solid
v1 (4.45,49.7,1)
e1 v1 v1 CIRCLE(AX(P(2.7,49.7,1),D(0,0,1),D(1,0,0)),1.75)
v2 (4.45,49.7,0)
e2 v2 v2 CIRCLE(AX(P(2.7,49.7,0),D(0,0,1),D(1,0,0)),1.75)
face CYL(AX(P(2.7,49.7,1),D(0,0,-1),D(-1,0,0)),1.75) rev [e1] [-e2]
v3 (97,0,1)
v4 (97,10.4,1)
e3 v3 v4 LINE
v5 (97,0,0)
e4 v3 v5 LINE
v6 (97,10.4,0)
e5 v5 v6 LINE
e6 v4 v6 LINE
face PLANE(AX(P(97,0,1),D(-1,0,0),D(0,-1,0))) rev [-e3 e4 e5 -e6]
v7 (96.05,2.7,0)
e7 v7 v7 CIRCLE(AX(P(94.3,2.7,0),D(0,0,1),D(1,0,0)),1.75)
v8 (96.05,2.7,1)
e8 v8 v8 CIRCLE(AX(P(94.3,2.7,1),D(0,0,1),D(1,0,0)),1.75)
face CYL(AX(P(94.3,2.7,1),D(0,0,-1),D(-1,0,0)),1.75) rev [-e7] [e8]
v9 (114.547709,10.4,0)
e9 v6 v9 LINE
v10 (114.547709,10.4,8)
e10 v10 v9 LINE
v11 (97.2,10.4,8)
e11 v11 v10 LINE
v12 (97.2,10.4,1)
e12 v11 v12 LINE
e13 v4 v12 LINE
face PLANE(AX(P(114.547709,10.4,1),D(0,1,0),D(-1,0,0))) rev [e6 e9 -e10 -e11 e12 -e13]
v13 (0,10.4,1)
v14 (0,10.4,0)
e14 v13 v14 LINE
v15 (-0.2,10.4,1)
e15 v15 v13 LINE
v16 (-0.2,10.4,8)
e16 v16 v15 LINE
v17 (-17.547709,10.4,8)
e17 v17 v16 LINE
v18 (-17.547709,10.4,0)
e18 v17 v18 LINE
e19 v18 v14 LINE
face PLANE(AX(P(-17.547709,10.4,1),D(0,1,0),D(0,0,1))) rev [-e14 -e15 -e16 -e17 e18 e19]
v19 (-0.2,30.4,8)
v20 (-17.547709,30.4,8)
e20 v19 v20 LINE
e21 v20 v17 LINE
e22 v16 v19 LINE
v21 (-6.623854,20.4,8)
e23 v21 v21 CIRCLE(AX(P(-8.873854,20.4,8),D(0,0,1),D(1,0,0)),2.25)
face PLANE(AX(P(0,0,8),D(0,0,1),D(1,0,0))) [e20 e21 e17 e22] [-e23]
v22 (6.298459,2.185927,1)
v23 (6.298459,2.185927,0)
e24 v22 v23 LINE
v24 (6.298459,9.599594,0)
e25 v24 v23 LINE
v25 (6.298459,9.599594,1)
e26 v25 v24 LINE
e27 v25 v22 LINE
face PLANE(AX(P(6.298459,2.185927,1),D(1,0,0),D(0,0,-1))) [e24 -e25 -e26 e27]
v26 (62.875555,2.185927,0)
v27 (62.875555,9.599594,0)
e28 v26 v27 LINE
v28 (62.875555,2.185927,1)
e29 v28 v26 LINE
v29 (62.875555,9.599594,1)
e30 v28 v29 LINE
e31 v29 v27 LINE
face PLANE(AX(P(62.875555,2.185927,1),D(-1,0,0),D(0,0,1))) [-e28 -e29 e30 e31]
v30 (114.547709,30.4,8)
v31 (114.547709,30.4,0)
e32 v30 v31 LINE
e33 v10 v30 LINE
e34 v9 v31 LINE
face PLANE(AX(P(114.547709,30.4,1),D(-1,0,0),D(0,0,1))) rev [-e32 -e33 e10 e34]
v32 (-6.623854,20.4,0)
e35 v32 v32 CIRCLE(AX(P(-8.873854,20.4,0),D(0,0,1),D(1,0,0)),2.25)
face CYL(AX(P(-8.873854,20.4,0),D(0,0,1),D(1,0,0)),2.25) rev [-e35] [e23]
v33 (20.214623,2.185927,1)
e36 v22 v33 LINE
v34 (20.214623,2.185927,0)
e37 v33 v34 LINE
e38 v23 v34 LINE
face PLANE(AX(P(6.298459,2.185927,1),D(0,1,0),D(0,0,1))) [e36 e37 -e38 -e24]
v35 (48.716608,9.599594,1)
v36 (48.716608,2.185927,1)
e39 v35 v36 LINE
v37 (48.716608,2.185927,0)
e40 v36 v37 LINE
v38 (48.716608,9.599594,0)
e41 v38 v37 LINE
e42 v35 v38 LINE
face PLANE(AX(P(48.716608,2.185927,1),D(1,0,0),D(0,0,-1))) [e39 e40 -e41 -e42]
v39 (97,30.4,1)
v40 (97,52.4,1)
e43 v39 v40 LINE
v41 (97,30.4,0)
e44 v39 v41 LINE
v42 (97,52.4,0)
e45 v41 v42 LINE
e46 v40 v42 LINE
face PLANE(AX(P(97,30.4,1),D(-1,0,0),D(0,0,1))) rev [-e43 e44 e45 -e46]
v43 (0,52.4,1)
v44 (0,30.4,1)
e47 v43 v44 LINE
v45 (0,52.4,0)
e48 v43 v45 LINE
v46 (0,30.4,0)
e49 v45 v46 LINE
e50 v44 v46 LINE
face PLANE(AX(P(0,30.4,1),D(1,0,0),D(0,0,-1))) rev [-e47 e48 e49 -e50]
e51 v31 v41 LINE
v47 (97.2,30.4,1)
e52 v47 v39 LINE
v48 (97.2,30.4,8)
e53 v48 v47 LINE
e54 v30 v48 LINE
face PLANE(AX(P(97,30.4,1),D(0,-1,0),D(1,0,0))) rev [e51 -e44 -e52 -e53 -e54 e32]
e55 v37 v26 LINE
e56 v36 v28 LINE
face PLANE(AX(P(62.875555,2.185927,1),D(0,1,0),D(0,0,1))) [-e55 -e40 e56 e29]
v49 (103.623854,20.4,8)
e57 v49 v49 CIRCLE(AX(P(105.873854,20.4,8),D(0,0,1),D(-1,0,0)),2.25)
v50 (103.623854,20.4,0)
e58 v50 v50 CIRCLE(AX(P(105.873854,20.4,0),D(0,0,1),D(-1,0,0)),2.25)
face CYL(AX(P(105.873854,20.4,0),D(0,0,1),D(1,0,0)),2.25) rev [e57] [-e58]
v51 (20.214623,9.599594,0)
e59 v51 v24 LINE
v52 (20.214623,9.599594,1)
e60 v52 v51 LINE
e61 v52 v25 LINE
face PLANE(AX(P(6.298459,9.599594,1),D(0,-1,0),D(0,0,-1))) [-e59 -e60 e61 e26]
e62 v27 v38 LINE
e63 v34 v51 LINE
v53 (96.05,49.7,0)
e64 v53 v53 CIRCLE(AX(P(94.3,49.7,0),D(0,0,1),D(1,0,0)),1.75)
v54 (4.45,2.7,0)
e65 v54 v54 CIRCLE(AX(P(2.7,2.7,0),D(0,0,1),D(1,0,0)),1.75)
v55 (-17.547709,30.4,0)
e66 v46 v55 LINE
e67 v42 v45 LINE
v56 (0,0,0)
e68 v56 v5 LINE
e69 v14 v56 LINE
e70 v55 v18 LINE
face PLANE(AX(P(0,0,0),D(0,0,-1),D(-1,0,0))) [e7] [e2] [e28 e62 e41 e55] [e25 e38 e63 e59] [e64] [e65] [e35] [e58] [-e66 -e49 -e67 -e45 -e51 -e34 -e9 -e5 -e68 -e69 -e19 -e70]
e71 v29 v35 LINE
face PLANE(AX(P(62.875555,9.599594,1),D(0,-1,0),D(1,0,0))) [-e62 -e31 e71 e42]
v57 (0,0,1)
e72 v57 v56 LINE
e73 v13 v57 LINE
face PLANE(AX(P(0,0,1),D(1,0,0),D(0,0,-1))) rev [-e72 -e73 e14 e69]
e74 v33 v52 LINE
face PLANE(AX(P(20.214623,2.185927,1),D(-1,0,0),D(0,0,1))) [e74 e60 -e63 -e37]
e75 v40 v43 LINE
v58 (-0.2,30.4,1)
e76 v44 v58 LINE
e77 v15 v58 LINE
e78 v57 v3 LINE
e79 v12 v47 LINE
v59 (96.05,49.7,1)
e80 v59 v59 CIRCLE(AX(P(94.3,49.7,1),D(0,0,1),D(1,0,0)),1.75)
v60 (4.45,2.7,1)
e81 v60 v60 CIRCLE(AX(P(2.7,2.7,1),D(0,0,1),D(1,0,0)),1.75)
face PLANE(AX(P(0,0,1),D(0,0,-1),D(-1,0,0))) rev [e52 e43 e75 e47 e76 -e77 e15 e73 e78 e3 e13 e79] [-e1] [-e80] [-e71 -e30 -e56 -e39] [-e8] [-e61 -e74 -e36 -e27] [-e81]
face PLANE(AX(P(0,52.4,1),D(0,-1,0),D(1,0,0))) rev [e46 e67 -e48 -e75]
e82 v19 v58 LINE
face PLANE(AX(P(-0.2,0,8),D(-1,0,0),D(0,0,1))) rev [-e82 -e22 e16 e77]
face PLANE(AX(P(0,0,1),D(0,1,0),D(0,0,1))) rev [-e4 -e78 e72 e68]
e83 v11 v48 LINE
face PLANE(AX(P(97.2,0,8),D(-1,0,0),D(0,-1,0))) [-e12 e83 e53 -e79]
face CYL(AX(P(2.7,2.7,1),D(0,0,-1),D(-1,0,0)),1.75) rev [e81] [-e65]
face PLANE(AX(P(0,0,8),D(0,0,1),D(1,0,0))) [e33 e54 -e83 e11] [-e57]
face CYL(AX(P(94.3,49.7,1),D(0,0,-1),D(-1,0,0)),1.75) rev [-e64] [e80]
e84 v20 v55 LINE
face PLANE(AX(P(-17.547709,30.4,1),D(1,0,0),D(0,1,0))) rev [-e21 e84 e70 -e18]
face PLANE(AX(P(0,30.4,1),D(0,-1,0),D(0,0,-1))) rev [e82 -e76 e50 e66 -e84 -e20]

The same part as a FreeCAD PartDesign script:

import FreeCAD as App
import Part
import Sketcher

V = App.Vector
Q = App.Units.Quantity

doc = App.newDocument("Part")
params = doc.addObject("Spreadsheet::Sheet", "Params")
for row, (alias, value) in enumerate([
    ("sketch1_diameter", "3.5 mm"),
    ("sketch1_width", "97 mm"),
    ("sketch1_height", "20 mm"),
    ("sketch1_height2", "22 mm"),
    ("sketch1_height3", "10.4 mm"),
    ("pad1_length", "1 mm"),
    ("sketch2_height", "20 mm"),
    ("pad2_length", "7 mm"),
    ("sketch3_diameter", "4.5 mm"),
], start=1):
    params.set(f"A{row}", alias)
    params.set(f"B{row}", "=" + value)
    params.setAlias(f"B{row}", alias)

body = doc.addObject("PartDesign::Body", "Body")

# Sketch on XY plane
sketch1 = body.newObject("Sketcher::SketchObject", "Sketch")
sketch1.AttachmentSupport = (doc.getObject("XY_Plane"), [""])
sketch1.MapMode = "FlatFace"
sketch1.addGeometry(Part.LineSegment(V(0, 0, 0), V(97, 0, 0)), False)
sketch1.addGeometry(Part.LineSegment(V(97, 0, 0), V(97, 10.4, 0)), False)
sketch1.addGeometry(Part.LineSegment(V(97, 10.4, 0), V(114.5, 10.4, 0)), False)
sketch1.addGeometry(Part.LineSegment(V(114.5, 10.4, 0), V(114.5, 30.4, 0)), False)
sketch1.addGeometry(Part.LineSegment(V(114.5, 30.4, 0), V(97, 30.4, 0)), False)
sketch1.addGeometry(Part.LineSegment(V(97, 30.4, 0), V(97, 52.4, 0)), False)
sketch1.addGeometry(Part.LineSegment(V(97, 52.4, 0), V(0, 52.4, 0)), False)
sketch1.addGeometry(Part.LineSegment(V(0, 52.4, 0), V(0, 30.4, 0)), False)
sketch1.addGeometry(Part.LineSegment(V(0, 30.4, 0), V(-17.5, 30.4, 0)), False)
sketch1.addGeometry(Part.LineSegment(V(-17.5, 30.4, 0), V(-17.5, 10.4, 0)), False)
sketch1.addGeometry(Part.LineSegment(V(-17.5, 10.4, 0), V(0, 10.4, 0)), False)
sketch1.addGeometry(Part.LineSegment(V(0, 10.4, 0), V(0, 0, 0)), False)
sketch1.addGeometry(Part.Circle(V(2.7, 2.7, 0), V(0, 0, 1), 1.8), False)
sketch1.addGeometry(Part.LineSegment(V(20.2, 2.2, 0), V(6.3, 2.2, 0)), False)
sketch1.addGeometry(Part.LineSegment(V(6.3, 2.2, 0), V(6.3, 9.6, 0)), False)
sketch1.addGeometry(Part.LineSegment(V(6.3, 9.6, 0), V(20.2, 9.6, 0)), False)
sketch1.addGeometry(Part.LineSegment(V(20.2, 9.6, 0), V(20.2, 2.2, 0)), False)
sketch1.addGeometry(Part.LineSegment(V(62.9, 2.2, 0), V(48.7, 2.2, 0)), False)
sketch1.addGeometry(Part.LineSegment(V(48.7, 2.2, 0), V(48.7, 9.6, 0)), False)
sketch1.addGeometry(Part.LineSegment(V(48.7, 9.6, 0), V(62.9, 9.6, 0)), False)
sketch1.addGeometry(Part.LineSegment(V(62.9, 9.6, 0), V(62.9, 2.2, 0)), False)
sketch1.addGeometry(Part.Circle(V(94.3, 2.7, 0), V(0, 0, 1), 1.8), False)
sketch1.addGeometry(Part.Circle(V(2.7, 49.7, 0), V(0, 0, 1), 1.8), False)
sketch1.addGeometry(Part.Circle(V(94.3, 49.7, 0), V(0, 0, 1), 1.8), False)
sketch1.addConstraint(Sketcher.Constraint("Coincident", 0, 2, 1, 1))
sketch1.addConstraint(Sketcher.Constraint("Coincident", 1, 2, 2, 1))
sketch1.addConstraint(Sketcher.Constraint("Coincident", 2, 2, 3, 1))
sketch1.addConstraint(Sketcher.Constraint("Coincident", 3, 2, 4, 1))
sketch1.addConstraint(Sketcher.Constraint("Coincident", 4, 2, 5, 1))
sketch1.addConstraint(Sketcher.Constraint("Coincident", 5, 2, 6, 1))
sketch1.addConstraint(Sketcher.Constraint("Coincident", 6, 2, 7, 1))
sketch1.addConstraint(Sketcher.Constraint("Coincident", 7, 2, 8, 1))
sketch1.addConstraint(Sketcher.Constraint("Coincident", 8, 2, 9, 1))
sketch1.addConstraint(Sketcher.Constraint("Coincident", 9, 2, 10, 1))
sketch1.addConstraint(Sketcher.Constraint("Coincident", 10, 2, 11, 1))
sketch1.addConstraint(Sketcher.Constraint("Coincident", 11, 2, 0, 1))
sketch1.addConstraint(Sketcher.Constraint("Coincident", 13, 2, 14, 1))
sketch1.addConstraint(Sketcher.Constraint("Coincident", 14, 2, 15, 1))
sketch1.addConstraint(Sketcher.Constraint("Coincident", 15, 2, 16, 1))
sketch1.addConstraint(Sketcher.Constraint("Coincident", 16, 2, 13, 1))
sketch1.addConstraint(Sketcher.Constraint("Coincident", 17, 2, 18, 1))
sketch1.addConstraint(Sketcher.Constraint("Coincident", 18, 2, 19, 1))
sketch1.addConstraint(Sketcher.Constraint("Coincident", 19, 2, 20, 1))
sketch1.addConstraint(Sketcher.Constraint("Coincident", 20, 2, 17, 1))
sketch1.addConstraint(Sketcher.Constraint("Horizontal", 0))
sketch1.addConstraint(Sketcher.Constraint("Vertical", 1))
sketch1.addConstraint(Sketcher.Constraint("Horizontal", 2))
sketch1.addConstraint(Sketcher.Constraint("Vertical", 3))
sketch1.addConstraint(Sketcher.Constraint("Horizontal", 4))
sketch1.addConstraint(Sketcher.Constraint("Vertical", 5))
sketch1.addConstraint(Sketcher.Constraint("Horizontal", 6))
sketch1.addConstraint(Sketcher.Constraint("Vertical", 7))
sketch1.addConstraint(Sketcher.Constraint("Horizontal", 8))
sketch1.addConstraint(Sketcher.Constraint("Vertical", 9))
sketch1.addConstraint(Sketcher.Constraint("Horizontal", 10))
sketch1.addConstraint(Sketcher.Constraint("Vertical", 11))
sketch1.addConstraint(Sketcher.Constraint("Horizontal", 13))
sketch1.addConstraint(Sketcher.Constraint("Vertical", 14))
sketch1.addConstraint(Sketcher.Constraint("Horizontal", 15))
sketch1.addConstraint(Sketcher.Constraint("Vertical", 16))
sketch1.addConstraint(Sketcher.Constraint("Horizontal", 17))
sketch1.addConstraint(Sketcher.Constraint("Vertical", 18))
sketch1.addConstraint(Sketcher.Constraint("Horizontal", 19))
sketch1.addConstraint(Sketcher.Constraint("Vertical", 20))
sketch1.addConstraint(Sketcher.Constraint("Coincident", 11, 2, -1, 1))
sketch1.addConstraint(Sketcher.Constraint("Equal", 12, 21))
sketch1.addConstraint(Sketcher.Constraint("Equal", 21, 22))
sketch1.addConstraint(Sketcher.Constraint("Equal", 22, 23))
sketch1.addConstraint(Sketcher.Constraint("PointOnObject", 6, 2, -2))
sketch1.addConstraint(Sketcher.Constraint("Horizontal", 12, 3, 21, 3))
sketch1.addConstraint(Sketcher.Constraint("Horizontal", 22, 3, 23, 3))
sketch1.addConstraint(Sketcher.Constraint("Horizontal", 4, 2, 7, 2))
sketch1.addConstraint(Sketcher.Constraint("Horizontal", 2, 2, 9, 2))
sketch1.addConstraint(Sketcher.Constraint("Horizontal", 16, 2, 17, 2))
sketch1.addConstraint(Sketcher.Constraint("Horizontal", 15, 2, 18, 2))
sketch1.addConstraint(Sketcher.Constraint("Vertical", 12, 3, 22, 3))
sketch1.addConstraint(Sketcher.Constraint("Vertical", 21, 3, 23, 3))
sketch1.addConstraint(Sketcher.Constraint("Vertical", 1, 2, 4, 2))
sketch1.addConstraint(Sketcher.Constraint("Equal", 4, 8))
sketch1.addConstraint(Sketcher.Constraint("Diameter", 12, Q("3.5 mm")))
sketch1.addConstraint(Sketcher.Constraint("DistanceX", 0, 1, 0, 2, Q("97 mm")))
sketch1.addConstraint(Sketcher.Constraint("DistanceY", 3, 1, 3, 2, Q("20 mm")))
sketch1.addConstraint(Sketcher.Constraint("DistanceY", 5, 1, 5, 2, Q("22 mm")))
sketch1.addConstraint(Sketcher.Constraint("DistanceY", 1, 1, 1, 2, Q("10.4 mm")))
sketch1.addConstraint(Sketcher.Constraint("DistanceY", 12, 3, 22, 3, Q("47 mm")))
sketch1.addConstraint(Sketcher.Constraint("DistanceX", -1, 1, 12, 3, Q("2.7 mm")))
sketch1.addConstraint(Sketcher.Constraint("DistanceY", -1, 1, 12, 3, Q("2.7 mm")))
sketch1.addConstraint(Sketcher.Constraint("DistanceX", -1, 1, 21, 3, Q("94.3 mm")))
sketch1.addConstraint(Sketcher.Constraint("DistanceX", 2, 1, 2, 2, Q("17.547709 mm")))
sketch1.addConstraint(Sketcher.Constraint("DistanceX", 13, 2, 13, 1, Q("13.916164 mm")))
sketch1.addConstraint(Sketcher.Constraint("DistanceX", 17, 2, 17, 1, Q("14.158947 mm")))
sketch1.addConstraint(Sketcher.Constraint("DistanceY", 14, 1, 14, 2, Q("7.413667 mm")))
sketch1.addConstraint(Sketcher.Constraint("DistanceX", -1, 1, 13, 2, Q("6.298459 mm")))
sketch1.addConstraint(Sketcher.Constraint("DistanceX", 13, 2, 17, 2, Q("42.418149 mm")))
sketch1.addConstraint(Sketcher.Constraint("DistanceY", -1, 1, 13, 2, Q("2.185927 mm")))
sketch1.setExpression("Constraints[55]", "Params.sketch1_diameter")
sketch1.setExpression("Constraints[56]", "Params.sketch1_width")
sketch1.setExpression("Constraints[57]", "Params.sketch1_height")
sketch1.setExpression("Constraints[58]", "Params.sketch1_height2")
sketch1.setExpression("Constraints[59]", "Params.sketch1_height3")
pad1 = body.newObject("PartDesign::Pad", "Pad")
pad1.Profile = sketch1
pad1.setExpression("Length", "Params.pad1_length")

# Sketch on XY plane
sketch2 = body.newObject("Sketcher::SketchObject", "Sketch001")
sketch2.AttachmentSupport = (doc.getObject("XY_Plane"), [""])
sketch2.MapMode = "FlatFace"
sketch2.AttachmentOffset = App.Placement(V(0, 0, 1), App.Rotation())
sketch2.addGeometry(Part.LineSegment(V(-18, 30, 0), V(-18, 10, 0)), False)
sketch2.addGeometry(Part.LineSegment(V(-18, 10, 0), V(0, 10, 0)), False)
sketch2.addGeometry(Part.LineSegment(V(0, 10, 0), V(0, 30, 0)), False)
sketch2.addGeometry(Part.LineSegment(V(0, 30, 0), V(-18, 30, 0)), False)
sketch2.addGeometry(Part.LineSegment(V(97, 30, 0), V(97, 10, 0)), False)
sketch2.addGeometry(Part.LineSegment(V(97, 10, 0), V(115, 10, 0)), False)
sketch2.addGeometry(Part.LineSegment(V(115, 10, 0), V(115, 30, 0)), False)
sketch2.addGeometry(Part.LineSegment(V(115, 30, 0), V(97, 30, 0)), False)
sketch2.addConstraint(Sketcher.Constraint("Coincident", 0, 2, 1, 1))
sketch2.addConstraint(Sketcher.Constraint("Coincident", 1, 2, 2, 1))
sketch2.addConstraint(Sketcher.Constraint("Coincident", 2, 2, 3, 1))
sketch2.addConstraint(Sketcher.Constraint("Coincident", 3, 2, 0, 1))
sketch2.addConstraint(Sketcher.Constraint("Coincident", 4, 2, 5, 1))
sketch2.addConstraint(Sketcher.Constraint("Coincident", 5, 2, 6, 1))
sketch2.addConstraint(Sketcher.Constraint("Coincident", 6, 2, 7, 1))
sketch2.addConstraint(Sketcher.Constraint("Coincident", 7, 2, 4, 1))
sketch2.addConstraint(Sketcher.Constraint("Vertical", 0))
sketch2.addConstraint(Sketcher.Constraint("Horizontal", 1))
sketch2.addConstraint(Sketcher.Constraint("Vertical", 2))
sketch2.addConstraint(Sketcher.Constraint("Horizontal", 3))
sketch2.addConstraint(Sketcher.Constraint("Vertical", 4))
sketch2.addConstraint(Sketcher.Constraint("Horizontal", 5))
sketch2.addConstraint(Sketcher.Constraint("Vertical", 6))
sketch2.addConstraint(Sketcher.Constraint("Horizontal", 7))
sketch2.addConstraint(Sketcher.Constraint("Horizontal", 1, 2, 4, 2))
sketch2.addConstraint(Sketcher.Constraint("Horizontal", 3, 2, 6, 2))
sketch2.addConstraint(Sketcher.Constraint("Equal", 3, 5))
sketch2.addConstraint(Sketcher.Constraint("DistanceY", 0, 2, 0, 1, Q("20 mm")))
sketch2.addConstraint(Sketcher.Constraint("DistanceY", -1, 1, 0, 2, Q("10.4 mm")))
sketch2.addConstraint(Sketcher.Constraint("DistanceX", 1, 2, -1, 1, Q("0.2 mm")))
sketch2.addConstraint(Sketcher.Constraint("DistanceX", -1, 1, 4, 2, Q("97.2 mm")))
sketch2.addConstraint(Sketcher.Constraint("DistanceX", 1, 1, 1, 2, Q("17.347709 mm")))
sketch2.setExpression("Constraints[19]", "Params.sketch2_height")
pad2 = body.newObject("PartDesign::Pad", "Pad001")
pad2.Profile = sketch2
pad2.setExpression("Length", "Params.pad2_length")

# Sketch on XY plane
sketch3 = body.newObject("Sketcher::SketchObject", "Sketch002")
sketch3.AttachmentSupport = (doc.getObject("XY_Plane"), [""])
sketch3.MapMode = "FlatFace"
sketch3.AttachmentOffset = App.Placement(V(0, 0, 8), App.Rotation())
sketch3.addGeometry(Part.Circle(V(-8.9, 20.4, 0), V(0, 0, 1), 2.2), False)
sketch3.addGeometry(Part.Circle(V(105.9, 20.4, 0), V(0, 0, 1), 2.2), False)
sketch3.addConstraint(Sketcher.Constraint("Equal", 0, 1))
sketch3.addConstraint(Sketcher.Constraint("Horizontal", 0, 3, 1, 3))
sketch3.addConstraint(Sketcher.Constraint("Diameter", 0, Q("4.5 mm")))
sketch3.addConstraint(Sketcher.Constraint("DistanceY", -1, 1, 0, 3, Q("20.4 mm")))
sketch3.addConstraint(Sketcher.Constraint("DistanceX", 0, 3, 1, 3, Q("114.747709 mm")))
sketch3.addConstraint(Sketcher.Constraint("DistanceX", 0, 3, -1, 1, Q("8.873854 mm")))
sketch3.setExpression("Constraints[2]", "Params.sketch3_diameter")
pocket1 = body.newObject("PartDesign::Pocket", "Pocket")
pocket1.Profile = sketch3
pocket1.Type = "ThroughAll"

doc.recompute()
